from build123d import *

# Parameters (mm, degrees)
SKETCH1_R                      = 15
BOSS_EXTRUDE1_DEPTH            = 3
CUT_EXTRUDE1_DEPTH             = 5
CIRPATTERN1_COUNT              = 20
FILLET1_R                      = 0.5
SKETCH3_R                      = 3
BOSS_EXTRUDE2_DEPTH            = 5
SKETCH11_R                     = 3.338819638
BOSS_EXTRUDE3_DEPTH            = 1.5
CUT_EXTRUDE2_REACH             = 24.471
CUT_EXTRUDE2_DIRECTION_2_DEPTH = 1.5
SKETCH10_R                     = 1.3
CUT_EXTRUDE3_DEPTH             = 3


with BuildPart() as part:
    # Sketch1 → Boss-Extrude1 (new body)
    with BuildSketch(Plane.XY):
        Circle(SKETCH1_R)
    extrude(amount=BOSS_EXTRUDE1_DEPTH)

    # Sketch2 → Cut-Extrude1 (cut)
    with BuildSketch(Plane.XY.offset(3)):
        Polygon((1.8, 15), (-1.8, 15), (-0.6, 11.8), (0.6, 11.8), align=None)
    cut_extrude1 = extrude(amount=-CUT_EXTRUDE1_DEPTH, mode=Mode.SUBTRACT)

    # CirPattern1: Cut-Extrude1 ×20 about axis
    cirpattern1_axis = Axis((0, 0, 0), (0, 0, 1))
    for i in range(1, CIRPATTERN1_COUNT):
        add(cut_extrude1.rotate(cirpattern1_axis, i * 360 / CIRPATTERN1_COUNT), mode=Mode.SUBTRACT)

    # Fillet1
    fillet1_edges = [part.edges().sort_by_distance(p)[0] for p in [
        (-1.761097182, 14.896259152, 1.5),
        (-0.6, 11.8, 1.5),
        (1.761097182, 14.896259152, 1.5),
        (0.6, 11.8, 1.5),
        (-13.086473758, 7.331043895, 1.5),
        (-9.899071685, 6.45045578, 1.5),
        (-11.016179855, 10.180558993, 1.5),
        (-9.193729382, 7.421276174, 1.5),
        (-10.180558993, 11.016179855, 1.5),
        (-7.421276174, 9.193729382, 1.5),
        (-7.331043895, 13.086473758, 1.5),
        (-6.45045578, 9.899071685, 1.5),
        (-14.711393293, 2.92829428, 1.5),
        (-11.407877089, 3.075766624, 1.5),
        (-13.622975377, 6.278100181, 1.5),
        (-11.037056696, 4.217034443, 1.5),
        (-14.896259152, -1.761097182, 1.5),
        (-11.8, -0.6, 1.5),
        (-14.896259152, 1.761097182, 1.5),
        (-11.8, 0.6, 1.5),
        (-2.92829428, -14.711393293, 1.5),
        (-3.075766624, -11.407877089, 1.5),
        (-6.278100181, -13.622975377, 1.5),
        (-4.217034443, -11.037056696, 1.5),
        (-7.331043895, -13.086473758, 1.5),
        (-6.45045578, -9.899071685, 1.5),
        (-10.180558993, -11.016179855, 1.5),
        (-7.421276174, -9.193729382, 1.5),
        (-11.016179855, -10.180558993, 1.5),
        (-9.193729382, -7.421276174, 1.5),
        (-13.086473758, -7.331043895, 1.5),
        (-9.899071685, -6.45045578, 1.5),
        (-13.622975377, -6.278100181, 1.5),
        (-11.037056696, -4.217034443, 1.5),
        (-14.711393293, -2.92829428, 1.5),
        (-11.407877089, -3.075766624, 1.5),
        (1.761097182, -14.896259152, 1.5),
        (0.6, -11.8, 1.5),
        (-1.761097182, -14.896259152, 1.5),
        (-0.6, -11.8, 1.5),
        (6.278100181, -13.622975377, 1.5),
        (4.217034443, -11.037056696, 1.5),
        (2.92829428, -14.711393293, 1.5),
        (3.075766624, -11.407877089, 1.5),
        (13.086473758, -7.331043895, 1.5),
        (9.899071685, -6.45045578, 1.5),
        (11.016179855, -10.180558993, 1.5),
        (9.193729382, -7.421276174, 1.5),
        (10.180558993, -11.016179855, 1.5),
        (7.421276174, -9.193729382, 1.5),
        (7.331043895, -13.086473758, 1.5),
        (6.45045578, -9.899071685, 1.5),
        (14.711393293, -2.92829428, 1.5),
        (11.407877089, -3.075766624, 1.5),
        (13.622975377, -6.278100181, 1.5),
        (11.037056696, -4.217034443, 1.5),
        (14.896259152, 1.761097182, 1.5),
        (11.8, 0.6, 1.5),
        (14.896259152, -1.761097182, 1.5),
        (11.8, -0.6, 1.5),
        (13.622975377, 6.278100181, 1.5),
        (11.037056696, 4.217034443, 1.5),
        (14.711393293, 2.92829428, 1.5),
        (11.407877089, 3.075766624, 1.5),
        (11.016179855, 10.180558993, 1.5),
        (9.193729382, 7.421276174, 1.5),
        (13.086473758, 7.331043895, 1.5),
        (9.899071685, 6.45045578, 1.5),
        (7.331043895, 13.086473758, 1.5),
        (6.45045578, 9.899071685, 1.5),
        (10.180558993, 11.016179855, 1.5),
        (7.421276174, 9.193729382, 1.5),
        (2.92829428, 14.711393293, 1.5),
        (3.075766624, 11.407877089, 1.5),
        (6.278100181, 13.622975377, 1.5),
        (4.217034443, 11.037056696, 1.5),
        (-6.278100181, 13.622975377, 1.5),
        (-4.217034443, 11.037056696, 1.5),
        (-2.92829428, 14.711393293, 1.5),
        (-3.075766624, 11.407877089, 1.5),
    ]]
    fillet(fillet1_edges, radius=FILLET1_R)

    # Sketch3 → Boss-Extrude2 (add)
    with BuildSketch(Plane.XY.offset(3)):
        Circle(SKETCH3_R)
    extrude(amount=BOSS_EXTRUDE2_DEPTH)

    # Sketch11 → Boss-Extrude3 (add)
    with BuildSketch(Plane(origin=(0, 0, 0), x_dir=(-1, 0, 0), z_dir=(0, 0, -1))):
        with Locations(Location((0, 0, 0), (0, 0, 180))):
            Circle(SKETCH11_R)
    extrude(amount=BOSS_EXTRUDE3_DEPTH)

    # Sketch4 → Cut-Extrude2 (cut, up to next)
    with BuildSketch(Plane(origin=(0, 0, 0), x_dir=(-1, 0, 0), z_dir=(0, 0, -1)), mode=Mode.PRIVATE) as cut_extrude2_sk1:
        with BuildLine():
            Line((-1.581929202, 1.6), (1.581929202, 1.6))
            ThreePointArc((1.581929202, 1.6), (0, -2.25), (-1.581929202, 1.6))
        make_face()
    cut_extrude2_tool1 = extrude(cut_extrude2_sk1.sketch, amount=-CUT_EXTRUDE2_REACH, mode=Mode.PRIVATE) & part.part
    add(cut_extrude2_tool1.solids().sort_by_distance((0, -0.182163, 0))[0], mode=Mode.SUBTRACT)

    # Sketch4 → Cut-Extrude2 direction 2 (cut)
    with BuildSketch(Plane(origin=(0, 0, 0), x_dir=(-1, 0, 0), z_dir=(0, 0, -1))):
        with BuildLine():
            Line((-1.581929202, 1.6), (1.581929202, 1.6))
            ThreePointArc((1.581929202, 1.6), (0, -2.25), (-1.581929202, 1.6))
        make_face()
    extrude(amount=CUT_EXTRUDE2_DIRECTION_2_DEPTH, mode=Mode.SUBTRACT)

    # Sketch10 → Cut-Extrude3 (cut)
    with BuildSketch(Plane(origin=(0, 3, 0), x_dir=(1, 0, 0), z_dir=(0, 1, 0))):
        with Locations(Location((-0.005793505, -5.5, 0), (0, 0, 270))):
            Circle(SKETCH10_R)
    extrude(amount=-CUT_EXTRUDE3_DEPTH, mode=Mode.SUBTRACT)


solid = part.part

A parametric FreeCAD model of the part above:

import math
import FreeCAD as App
import Part
import Sketcher

V = App.Vector
Q = App.Units.Quantity


def edges_at(feature, points):
    """Names of the edges that pass closest to the given points."""
    edges = feature.Shape.Edges
    near = lambda p: min(range(len(edges)), key=lambda i: edges[i].distToShape(Part.Vertex(*p))[0])
    return sorted({f"Edge{near(p) + 1}" for p in points})

doc = App.newDocument("Part")
body = doc.addObject("PartDesign::Body", "Body")

# Sketch on XY plane
sketch1 = doc.addObject("Sketcher::SketchObject", "Sketch")
body.addObject(sketch1)
sketch1.AttachmentSupport = (doc.XY_Plane, [""])
sketch1.MapMode = "FlatFace"
sketch1.addGeometry(Part.Circle(V(0, 0, 0), V(0, 0, 1), 15), False)
sketch1.addConstraint([
    Sketcher.Constraint("Coincident", 0, 3, -1, 1),
    Sketcher.Constraint("Diameter", 0, Q("30 mm")),
])
pad1 = doc.addObject("PartDesign::Pad", "Pad")
body.addObject(pad1)
pad1.Profile = sketch1
pad1.Length = 3

# Sketch on XY plane
sketch2 = doc.addObject("Sketcher::SketchObject", "Sketch001")
body.addObject(sketch2)
sketch2.AttachmentSupport = (doc.XY_Plane, [""])
sketch2.MapMode = "FlatFace"
sketch2.AttachmentOffset = App.Placement(V(0, 0, 3), App.Rotation())
sketch2.addGeometry([
    Part.LineSegment(V(1.8, 15, 0), V(-1.8, 15, 0)),
    Part.LineSegment(V(-1.8, 15, 0), V(-0.6, 11.8, 0)),
    Part.LineSegment(V(-0.6, 11.8, 0), V(0.6, 11.8, 0)),
    Part.LineSegment(V(0.6, 11.8, 0), V(1.8, 15, 0)),
], False)
sketch2.addConstraint([
    Sketcher.Constraint("Coincident", 0, 2, 1, 1),
    Sketcher.Constraint("Coincident", 1, 2, 2, 1),
    Sketcher.Constraint("Coincident", 2, 2, 3, 1),
    Sketcher.Constraint("Coincident", 3, 2, 0, 1),
    Sketcher.Constraint("Horizontal", 0),
    Sketcher.Constraint("Horizontal", 2),
    Sketcher.Constraint("Equal", 1, 3),
    Sketcher.Constraint("DistanceX", 0, 2, 0, 1, Q("3.6 mm")),
    Sketcher.Constraint("DistanceX", 2, 1, 2, 2, Q("1.2 mm")),
    Sketcher.Constraint("DistanceY", -1, 1, 0, 2, Q("15 mm")),
    Sketcher.Constraint("DistanceX", 0, 2, -1, 1, Q("1.8 mm")),
    Sketcher.Constraint("DistanceY", -1, 1, 1, 2, Q("11.8 mm")),
])
pocket1 = doc.addObject("PartDesign::Pocket", "Pocket")
body.addObject(pocket1)
pocket1.Profile = sketch2
pocket1.Length = 5
doc.recompute()

polarpattern = doc.addObject("PartDesign::PolarPattern", "PolarPattern")
body.addObject(polarpattern)
polarpattern.Originals = [pocket1]
polarpattern.Axis = (doc.Z_Axis, [""])
polarpattern.Angle = 360
polarpattern.Occurrences = 20
body.Tip = polarpattern
doc.recompute()

fillet = doc.addObject("PartDesign::Fillet", "Fillet")
body.addObject(fillet)
fillet.Base = (polarpattern, edges_at(polarpattern, [
    (-1.761, 14.896, 1.5),
    (-0.6, 11.8, 1.5),
    (1.761, 14.896, 1.5),
    (0.6, 11.8, 1.5),
    (-13.086, 7.331, 1.5),
    (-9.899, 6.45, 1.5),
    (-11.016, 10.181, 1.5),
    (-9.194, 7.421, 1.5),
    (-10.181, 11.016, 1.5),
    (-7.421, 9.194, 1.5),
    (-7.331, 13.086, 1.5),
    (-6.45, 9.899, 1.5),
    (-14.711, 2.928, 1.5),
    (-11.408, 3.076, 1.5),
    (-13.623, 6.278, 1.5),
    (-11.037, 4.217, 1.5),
    (-14.896, -1.761, 1.5),
    (-11.8, -0.6, 1.5),
    (-14.896, 1.761, 1.5),
    (-11.8, 0.6, 1.5),
    (-2.928, -14.711, 1.5),
    (-3.076, -11.408, 1.5),
    (-6.278, -13.623, 1.5),
    (-4.217, -11.037, 1.5),
    (-7.331, -13.086, 1.5),
    (-6.45, -9.899, 1.5),
    (-10.181, -11.016, 1.5),
    (-7.421, -9.194, 1.5),
    (-11.016, -10.181, 1.5),
    (-9.194, -7.421, 1.5),
    (-13.086, -7.331, 1.5),
    (-9.899, -6.45, 1.5),
    (-13.623, -6.278, 1.5),
    (-11.037, -4.217, 1.5),
    (-14.711, -2.928, 1.5),
    (-11.408, -3.076, 1.5),
    (1.761, -14.896, 1.5),
    (0.6, -11.8, 1.5),
    (-1.761, -14.896, 1.5),
    (-0.6, -11.8, 1.5),
    (6.278, -13.623, 1.5),
    (4.217, -11.037, 1.5),
    (2.928, -14.711, 1.5),
    (3.076, -11.408, 1.5),
    (13.086, -7.331, 1.5),
    (9.899, -6.45, 1.5),
    (11.016, -10.181, 1.5),
    (9.194, -7.421, 1.5),
    (10.181, -11.016, 1.5),
    (7.421, -9.194, 1.5),
    (7.331, -13.086, 1.5),
    (6.45, -9.899, 1.5),
    (14.711, -2.928, 1.5),
    (11.408, -3.076, 1.5),
    (13.623, -6.278, 1.5),
    (11.037, -4.217, 1.5),
    (14.896, 1.761, 1.5),
    (11.8, 0.6, 1.5),
    (14.896, -1.761, 1.5),
    (11.8, -0.6, 1.5),
    (13.623, 6.278, 1.5),
    (11.037, 4.217, 1.5),
    (14.711, 2.928, 1.5),
    (11.408, 3.076, 1.5),
    (11.016, 10.181, 1.5),
    (9.194, 7.421, 1.5),
    (13.086, 7.331, 1.5),
    (9.899, 6.45, 1.5),
    (7.331, 13.086, 1.5),
    (6.45, 9.899, 1.5),
    (10.181, 11.016, 1.5),
    (7.421, 9.194, 1.5),
    (2.928, 14.711, 1.5),
    (3.076, 11.408, 1.5),
    (6.278, 13.623, 1.5),
    (4.217, 11.037, 1.5),
    (-6.278, 13.623, 1.5),
    (-4.217, 11.037, 1.5),
    (-2.928, 14.711, 1.5),
    (-3.076, 11.408, 1.5),
]))
fillet.Radius = 0.5

# Sketch on XY plane
sketch3 = doc.addObject("Sketcher::SketchObject", "Sketch002")
body.addObject(sketch3)
sketch3.AttachmentSupport = (doc.XY_Plane, [""])
sketch3.MapMode = "FlatFace"
sketch3.AttachmentOffset = App.Placement(V(0, 0, 3), App.Rotation())
sketch3.addGeometry(Part.Circle(V(0, 0, 0), V(0, 0, 1), 3), False)
sketch3.addConstraint([
    Sketcher.Constraint("Coincident", 0, 3, -1, 1),
    Sketcher.Constraint("Diameter", 0, Q("6 mm")),
])
pad2 = doc.addObject("PartDesign::Pad", "Pad001")
body.addObject(pad2)
pad2.Profile = sketch3
pad2.Length = 5

# Sketch on XY plane
sketch4 = doc.addObject("Sketcher::SketchObject", "Sketch003")
body.addObject(sketch4)
sketch4.AttachmentSupport = (doc.XY_Plane, [""])
sketch4.MapMode = "FlatFace"
sketch4.addGeometry(Part.Circle(V(0, 0, 0), V(0, 0, 1), 3.33882), False)
sketch4.addConstraint([
    Sketcher.Constraint("Coincident", 0, 3, -1, 1),
    Sketcher.Constraint("Diameter", 0, Q("6.677639 mm")),
])
pad3 = doc.addObject("PartDesign::Pad", "Pad002")
body.addObject(pad3)
pad3.Profile = sketch4
pad3.Length = 1.5
pad3.Reversed = True

# Sketch on XY plane
sketch5 = doc.addObject("Sketcher::SketchObject", "Sketch004")
body.addObject(sketch5)
sketch5.AttachmentSupport = (doc.XY_Plane, [""])
sketch5.MapMode = "FlatFace"
sketch5.addGeometry([
    Part.LineSegment(V(-1.581929, 1.6, 0), V(1.581929, 1.6, 0)),
    Part.ArcOfCircle(Part.Circle(V(0, 0, 0), V(0, 0, 1), 2.25), math.radians(134.67461), math.radians(405.32539)),
], False)
sketch5.addConstraint([
    Sketcher.Constraint("Coincident", 0, 1, 1, 1),
    Sketcher.Constraint("Coincident", 1, 2, 0, 2),
    Sketcher.Constraint("Horizontal", 0),
    Sketcher.Constraint("Coincident", 1, 3, -1, 1),
    Sketcher.Constraint("Radius", 1, Q("2.25 mm")),
    Sketcher.Constraint("DistanceY", -1, 1, 0, 1, Q("1.6 mm")),
])
pocket2 = doc.addObject("PartDesign::Pocket", "Pocket001")
body.addObject(pocket2)
pocket2.Profile = sketch5
pocket2.Type = "UpToFirst"
pocket2.Reversed = True

# Sketch on XY plane
sketch6 = doc.addObject("Sketcher::SketchObject", "Sketch005")
body.addObject(sketch6)
sketch6.AttachmentSupport = (doc.XY_Plane, [""])
sketch6.MapMode = "FlatFace"
sketch6.addGeometry([
    Part.LineSegment(V(-1.581929, 1.6, 0), V(1.581929, 1.6, 0)),
    Part.ArcOfCircle(Part.Circle(V(0, 0, 0), V(0, 0, 1), 2.25), math.radians(134.67461), math.radians(405.32539)),
], False)
sketch6.addConstraint([
    Sketcher.Constraint("Coincident", 0, 1, 1, 1),
    Sketcher.Constraint("Coincident", 1, 2, 0, 2),
    Sketcher.Constraint("Horizontal", 0),
    Sketcher.Constraint("Coincident", 1, 3, -1, 1),
    Sketcher.Constraint("Radius", 1, Q("2.25 mm")),
    Sketcher.Constraint("DistanceY", -1, 1, 0, 1, Q("1.6 mm")),
])
pocket3 = doc.addObject("PartDesign::Pocket", "Pocket002")
body.addObject(pocket3)
pocket3.Profile = sketch6
pocket3.Length = 1.5

# Sketch on XZ plane
sketch7 = doc.addObject("Sketcher::SketchObject", "Sketch006")
body.addObject(sketch7)
sketch7.AttachmentSupport = (doc.XZ_Plane, [""])
sketch7.MapMode = "FlatFace"
sketch7.AttachmentOffset = App.Placement(V(0, 0, -3), App.Rotation())
sketch7.addGeometry(Part.Circle(V(-0.005794, 5.5, 0), V(0, 0, 1), 1.3), False)
sketch7.addConstraint([
    Sketcher.Constraint("Diameter", 0, Q("2.6 mm")),
    Sketcher.Constraint("DistanceY", -1, 1, 0, 3, Q("5.5 mm")),
    Sketcher.Constraint("DistanceX", 0, 3, -1, 1, Q("0.005794 mm")),
])
pocket4 = doc.addObject("PartDesign::Pocket", "Pocket003")
body.addObject(pocket4)
pocket4.Profile = sketch7
pocket4.Length = 3
pocket4.Reversed = True

doc.recompute()
